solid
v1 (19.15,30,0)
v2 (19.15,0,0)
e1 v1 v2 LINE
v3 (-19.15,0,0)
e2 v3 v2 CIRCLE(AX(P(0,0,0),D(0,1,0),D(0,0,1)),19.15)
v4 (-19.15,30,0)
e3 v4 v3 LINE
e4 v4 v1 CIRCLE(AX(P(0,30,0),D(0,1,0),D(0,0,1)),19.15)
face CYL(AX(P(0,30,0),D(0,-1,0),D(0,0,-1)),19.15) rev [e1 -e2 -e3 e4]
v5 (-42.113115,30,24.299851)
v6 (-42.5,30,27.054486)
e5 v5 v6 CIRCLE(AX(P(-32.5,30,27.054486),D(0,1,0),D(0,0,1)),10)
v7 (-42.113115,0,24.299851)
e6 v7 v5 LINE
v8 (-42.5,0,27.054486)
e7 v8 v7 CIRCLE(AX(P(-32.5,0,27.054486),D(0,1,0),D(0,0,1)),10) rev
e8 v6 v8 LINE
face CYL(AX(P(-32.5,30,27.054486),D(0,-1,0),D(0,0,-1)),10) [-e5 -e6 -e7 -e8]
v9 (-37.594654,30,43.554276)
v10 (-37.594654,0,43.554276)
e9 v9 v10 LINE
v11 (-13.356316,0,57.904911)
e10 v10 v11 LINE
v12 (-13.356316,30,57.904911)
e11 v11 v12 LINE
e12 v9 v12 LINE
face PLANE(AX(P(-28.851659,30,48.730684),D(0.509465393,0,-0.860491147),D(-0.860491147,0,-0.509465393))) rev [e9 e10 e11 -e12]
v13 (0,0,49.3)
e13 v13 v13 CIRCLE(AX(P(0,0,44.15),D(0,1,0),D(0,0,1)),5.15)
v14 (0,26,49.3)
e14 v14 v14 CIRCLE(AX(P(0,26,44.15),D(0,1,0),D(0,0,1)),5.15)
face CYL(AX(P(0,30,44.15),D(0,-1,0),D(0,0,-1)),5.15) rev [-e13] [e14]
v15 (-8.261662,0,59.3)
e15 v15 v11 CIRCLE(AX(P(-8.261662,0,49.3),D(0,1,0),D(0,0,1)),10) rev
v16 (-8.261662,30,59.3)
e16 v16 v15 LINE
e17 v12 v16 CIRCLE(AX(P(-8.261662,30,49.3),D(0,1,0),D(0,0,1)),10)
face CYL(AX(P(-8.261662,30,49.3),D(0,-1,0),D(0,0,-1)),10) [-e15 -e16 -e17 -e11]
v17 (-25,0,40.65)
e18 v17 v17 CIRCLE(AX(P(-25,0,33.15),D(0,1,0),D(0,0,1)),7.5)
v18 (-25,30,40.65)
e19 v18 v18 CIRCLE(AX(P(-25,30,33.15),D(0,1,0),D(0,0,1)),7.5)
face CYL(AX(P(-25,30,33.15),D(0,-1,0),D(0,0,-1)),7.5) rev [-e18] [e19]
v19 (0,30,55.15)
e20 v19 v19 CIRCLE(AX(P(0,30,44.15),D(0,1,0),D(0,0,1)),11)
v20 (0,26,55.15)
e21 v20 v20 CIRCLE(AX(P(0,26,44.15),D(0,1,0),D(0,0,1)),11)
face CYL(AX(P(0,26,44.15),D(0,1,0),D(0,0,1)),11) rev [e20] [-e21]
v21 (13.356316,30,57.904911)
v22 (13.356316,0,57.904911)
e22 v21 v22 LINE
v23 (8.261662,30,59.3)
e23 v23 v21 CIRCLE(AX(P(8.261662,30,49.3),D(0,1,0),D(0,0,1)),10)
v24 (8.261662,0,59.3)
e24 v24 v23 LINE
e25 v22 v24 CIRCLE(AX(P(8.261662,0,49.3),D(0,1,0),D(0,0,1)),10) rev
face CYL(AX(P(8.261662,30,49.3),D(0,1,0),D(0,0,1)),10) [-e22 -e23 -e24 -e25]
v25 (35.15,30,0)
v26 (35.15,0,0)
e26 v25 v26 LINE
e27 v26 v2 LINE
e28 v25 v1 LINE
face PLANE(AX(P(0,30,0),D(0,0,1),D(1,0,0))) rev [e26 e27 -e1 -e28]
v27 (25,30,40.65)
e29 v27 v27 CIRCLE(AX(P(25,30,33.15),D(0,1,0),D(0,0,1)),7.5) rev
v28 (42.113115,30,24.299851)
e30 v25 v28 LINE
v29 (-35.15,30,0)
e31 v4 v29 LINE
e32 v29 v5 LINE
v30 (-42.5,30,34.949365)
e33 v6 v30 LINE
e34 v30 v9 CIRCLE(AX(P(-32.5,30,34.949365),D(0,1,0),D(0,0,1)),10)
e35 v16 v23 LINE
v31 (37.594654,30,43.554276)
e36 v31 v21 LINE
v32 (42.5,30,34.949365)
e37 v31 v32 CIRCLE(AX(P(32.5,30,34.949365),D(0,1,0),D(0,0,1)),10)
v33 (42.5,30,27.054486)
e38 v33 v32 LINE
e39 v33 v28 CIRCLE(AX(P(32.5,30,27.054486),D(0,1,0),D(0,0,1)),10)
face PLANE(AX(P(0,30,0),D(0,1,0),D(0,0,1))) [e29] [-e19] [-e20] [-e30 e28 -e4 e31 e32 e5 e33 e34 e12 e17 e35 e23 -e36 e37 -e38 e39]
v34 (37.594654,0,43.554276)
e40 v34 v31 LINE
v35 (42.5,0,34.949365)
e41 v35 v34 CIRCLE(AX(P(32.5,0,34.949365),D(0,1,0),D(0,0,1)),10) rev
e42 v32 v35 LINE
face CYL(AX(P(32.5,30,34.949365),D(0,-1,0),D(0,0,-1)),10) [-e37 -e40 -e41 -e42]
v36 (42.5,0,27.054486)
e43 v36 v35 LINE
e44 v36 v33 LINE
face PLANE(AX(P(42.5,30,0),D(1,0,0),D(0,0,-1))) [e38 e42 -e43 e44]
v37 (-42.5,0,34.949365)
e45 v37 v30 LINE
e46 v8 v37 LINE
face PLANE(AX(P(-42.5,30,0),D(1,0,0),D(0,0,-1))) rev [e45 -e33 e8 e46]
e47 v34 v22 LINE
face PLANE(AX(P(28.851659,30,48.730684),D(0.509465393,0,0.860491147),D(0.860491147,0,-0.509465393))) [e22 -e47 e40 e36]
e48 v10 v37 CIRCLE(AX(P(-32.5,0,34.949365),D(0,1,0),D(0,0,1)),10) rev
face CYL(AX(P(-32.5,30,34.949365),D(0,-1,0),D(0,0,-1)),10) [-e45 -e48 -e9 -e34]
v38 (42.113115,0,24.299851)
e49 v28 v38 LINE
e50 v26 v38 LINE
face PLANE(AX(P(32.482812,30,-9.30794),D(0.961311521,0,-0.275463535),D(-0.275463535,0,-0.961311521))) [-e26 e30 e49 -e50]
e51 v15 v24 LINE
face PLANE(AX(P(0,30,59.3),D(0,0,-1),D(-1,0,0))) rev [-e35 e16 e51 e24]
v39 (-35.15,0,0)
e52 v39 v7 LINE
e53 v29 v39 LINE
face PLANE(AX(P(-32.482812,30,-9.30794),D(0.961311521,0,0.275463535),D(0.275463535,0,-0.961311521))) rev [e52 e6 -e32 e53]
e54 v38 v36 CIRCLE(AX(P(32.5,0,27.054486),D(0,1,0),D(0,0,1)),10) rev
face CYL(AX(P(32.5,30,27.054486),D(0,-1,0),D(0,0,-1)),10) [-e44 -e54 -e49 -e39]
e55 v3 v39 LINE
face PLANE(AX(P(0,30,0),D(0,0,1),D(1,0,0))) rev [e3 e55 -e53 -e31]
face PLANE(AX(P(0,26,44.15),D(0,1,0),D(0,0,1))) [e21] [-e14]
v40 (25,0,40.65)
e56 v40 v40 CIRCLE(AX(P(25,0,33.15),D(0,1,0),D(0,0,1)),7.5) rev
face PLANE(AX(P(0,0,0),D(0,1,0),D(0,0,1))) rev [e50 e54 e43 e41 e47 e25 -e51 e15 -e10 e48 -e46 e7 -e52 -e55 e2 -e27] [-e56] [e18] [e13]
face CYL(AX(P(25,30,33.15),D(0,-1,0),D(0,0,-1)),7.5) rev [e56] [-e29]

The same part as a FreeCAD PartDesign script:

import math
import FreeCAD as App
import Part
import Sketcher


def edges_at(feature, points):
    """Names of the edges that pass closest to the given points."""
    edges = feature.Shape.Edges
    near = lambda p: min(range(len(edges)), key=lambda i: edges[i].distToShape(Part.Vertex(*p))[0])
    return sorted({f"Edge{near(p) + 1}" for p in points})

doc = App.newDocument("Part")
body = doc.addObject("PartDesign::Body", "Body")

# Sketch on XZ plane
sketch1 = body.newObject("Sketcher::SketchObject", "Sketch")
sketch1.AttachmentSupport = (doc.getObject("XZ_Plane"), [""])
sketch1.MapMode = "FlatFace"
sketch1.addGeometry([
    Part.LineSegment(App.Vector(35, 0, 0), App.Vector(19, 0, 0)),  # 0
    Part.ArcOfCircle(Part.Circle(App.Vector(0, 0, 0), App.Vector(0, 0, 1), 19), math.radians(0), math.radians(180)),  # 1
    Part.LineSegment(App.Vector(-19, 0, 0), App.Vector(-35, 0, 0)),  # 2
    Part.LineSegment(App.Vector(-35, 0, 0), App.Vector(-42, 26, 0)),  # 3
    Part.LineSegment(App.Vector(-42, 26, 0), App.Vector(-42, 41, 0)),  # 4
    Part.LineSegment(App.Vector(-42, 41, 0), App.Vector(-11, 59, 0)),  # 5
    Part.LineSegment(App.Vector(-11, 59, 0), App.Vector(11, 59, 0)),  # 6
    Part.LineSegment(App.Vector(11, 59, 0), App.Vector(42, 41, 0)),  # 7
    Part.LineSegment(App.Vector(42, 41, 0), App.Vector(42, 26, 0)),  # 8
    Part.LineSegment(App.Vector(42, 26, 0), App.Vector(35, 0, 0)),  # 9
    Part.Circle(App.Vector(0, 44, 0), App.Vector(0, 0, 1), 5),  # 10
    Part.Circle(App.Vector(-25, 33, 0), App.Vector(0, 0, 1), 8),  # 11
    Part.Circle(App.Vector(25, 33, 0), App.Vector(0, 0, 1), 8),  # 12
], False)
sketch1.addConstraint([
    Sketcher.Constraint("Coincident", 0, 2, 1, 1),
    Sketcher.Constraint("Coincident", 1, 2, 2, 1),
    Sketcher.Constraint("Coincident", 2, 2, 3, 1),
    Sketcher.Constraint("Coincident", 3, 2, 4, 1),
    Sketcher.Constraint("Coincident", 4, 2, 5, 1),
    Sketcher.Constraint("Coincident", 5, 2, 6, 1),
    Sketcher.Constraint("Coincident", 6, 2, 7, 1),
    Sketcher.Constraint("Coincident", 7, 2, 8, 1),
    Sketcher.Constraint("Coincident", 8, 2, 9, 1),
    Sketcher.Constraint("Coincident", 9, 2, 0, 1),
    Sketcher.Constraint("Horizontal", 0),
    Sketcher.Constraint("Horizontal", 2),
    Sketcher.Constraint("Vertical", 4),
    Sketcher.Constraint("Horizontal", 6),
    Sketcher.Constraint("Vertical", 8),
    Sketcher.Constraint("Coincident", 1, 3, -1, 1),
    Sketcher.Constraint("Equal", 11, 12),
    Sketcher.Constraint("Symmetric", 2, 2, 9, 2, -1, 1),
    Sketcher.Constraint("Symmetric", 11, 3, 12, 3, -2),
    Sketcher.Constraint("Symmetric", 4, 2, 7, 2, -2),
    Sketcher.Constraint("PointOnObject", 10, 3, -2),
    Sketcher.Constraint("PointOnObject", 0, 2, -1),
    Sketcher.Constraint("Horizontal", 3, 2, 8, 2),
    Sketcher.Constraint("Equal", 5, 7),
    Sketcher.Constraint("Diameter", 11, 15.0),
    Sketcher.Constraint("Diameter", 10, 10.3),
    Sketcher.Constraint("DistanceX", 0, 2, 0, 1, 16.0),
    Sketcher.Constraint("DistanceX", 6, 1, 6, 2, 22.0),
    Sketcher.Constraint("DistanceY", 4, 1, 4, 2, 15.0),
    Sketcher.Constraint("Radius", 1, 19.15),
    Sketcher.Constraint("DistanceX", 11, 3, -1, 1, 25.0),
    Sketcher.Constraint("DistanceY", 11, 3, 10, 3, 11.0),
    Sketcher.Constraint("DistanceX", 3, 2, -1, 1, 42.5),
    Sketcher.Constraint("DistanceY", -1, 1, 5, 2, 59.3),
    Sketcher.Constraint("DistanceY", 3, 2, 11, 3, 7.5),
    Sketcher.Constraint("DistanceY", -1, 1, 10, 3, 44.15),
])
pad1 = body.newObject("PartDesign::Pad", "Pad")
pad1.Profile = sketch1
pad1.Length = 30
pad1.Reversed = True
doc.recompute()

fillet = body.newObject("PartDesign::Fillet", "Fillet")
fillet.Base = (pad1, edges_at(pad1, [
    (42.5, 15, 25.65),
    (42.5, 15, 40.65),
    (11, 15, 59.3),
    (-11, 15, 59.3),
    (-42.5, 15, 40.65),
    (-42.5, 15, 25.65),
]))
fillet.Radius = 10

# Sketch on XZ plane
sketch2 = body.newObject("Sketcher::SketchObject", "Sketch001")
sketch2.AttachmentSupport = (doc.getObject("XZ_Plane"), [""])
sketch2.MapMode = "FlatFace"
sketch2.AttachmentOffset = App.Placement(App.Vector(0, 0, -30), App.Rotation())
sketch2.addGeometry(Part.Circle(App.Vector(0, 44, 0), App.Vector(0, 0, 1), 11), False)
sketch2.addConstraint([
    Sketcher.Constraint("PointOnObject", 0, 3, -2),
    Sketcher.Constraint("Diameter", 0, 22.0),
    Sketcher.Constraint("DistanceY", -1, 1, 0, 3, 44.15),
])
pocket1 = body.newObject("PartDesign::Pocket", "Pocket")
pocket1.Profile = sketch2
pocket1.Length = 4
pocket1.Reversed = True

doc.recompute()
